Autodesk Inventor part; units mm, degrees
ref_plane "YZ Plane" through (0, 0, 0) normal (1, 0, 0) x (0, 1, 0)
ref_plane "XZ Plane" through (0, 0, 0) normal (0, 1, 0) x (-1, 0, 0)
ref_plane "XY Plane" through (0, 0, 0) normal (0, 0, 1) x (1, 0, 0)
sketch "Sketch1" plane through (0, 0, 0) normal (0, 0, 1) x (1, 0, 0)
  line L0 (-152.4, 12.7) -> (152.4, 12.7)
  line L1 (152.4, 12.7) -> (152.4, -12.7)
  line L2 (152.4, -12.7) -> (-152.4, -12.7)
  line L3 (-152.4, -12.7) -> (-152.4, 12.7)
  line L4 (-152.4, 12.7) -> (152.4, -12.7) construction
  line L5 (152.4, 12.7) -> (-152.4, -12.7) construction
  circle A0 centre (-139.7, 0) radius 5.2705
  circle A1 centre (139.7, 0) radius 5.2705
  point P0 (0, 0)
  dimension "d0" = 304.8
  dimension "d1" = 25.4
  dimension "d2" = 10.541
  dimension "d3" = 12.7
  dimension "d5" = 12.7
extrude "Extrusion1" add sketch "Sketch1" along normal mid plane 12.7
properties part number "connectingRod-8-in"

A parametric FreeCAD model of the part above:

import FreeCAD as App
import Part
import Sketcher

V = App.Vector
Q = App.Units.Quantity


def add_polygon(sketch, points):
    """Adds a closed chain of lines whose ends are joined by coincident constraints."""
    first, n = sketch.GeometryCount, len(points)
    for a, b in zip(points, points[1:] + points[:1]):
        sketch.addGeometry(Part.LineSegment(App.Vector(*a, 0), App.Vector(*b, 0)), False)
    for i in range(n):
        sketch.addConstraint(Sketcher.Constraint("Coincident", first + i, 2, first + (i + 1) % n, 1))

doc = App.newDocument("Part")
params = doc.addObject("Spreadsheet::Sheet", "Params")
for row, (alias, value) in enumerate([
    ("sketch1_width", "12 in"),
    ("sketch1_height", "1 in"),
    ("sketch1_diameter", "0.415 in"),
    ("pad1_length", "0.5 in"),
], start=1):
    params.set(f"A{row}", alias)
    params.set(f"B{row}", "=" + value)
    params.setAlias(f"B{row}", alias)

body = doc.addObject("PartDesign::Body", "Body")

sketch1 = body.newObject("Sketcher::SketchObject", "Sketch")
sketch1.AttachmentSupport = (doc.getObject("XY_Plane"), [""])
sketch1.MapMode = "FlatFace"
add_polygon(sketch1, [(152, 13), (-152, 13), (-152, -13), (152, -13)])
sketch1.addGeometry(Part.Circle(V(-140, 0, 0), V(0, 0, 1), 5), False)
sketch1.addGeometry(Part.Circle(V(140, 0, 0), V(0, 0, 1), 5), False)
sketch1.addConstraint([
    Sketcher.Constraint("Horizontal", 0),
    Sketcher.Constraint("Vertical", 1),
    Sketcher.Constraint("Horizontal", 2),
    Sketcher.Constraint("Vertical", 3),
    Sketcher.Constraint("Equal", 4, 5),
    Sketcher.Constraint("Symmetric", 4, 3, 5, 3, -1, 1),
    Sketcher.Constraint("Symmetric", 0, 2, 2, 2, -1, 1),
    Sketcher.Constraint("PointOnObject", 4, 3, -1),
    Sketcher.Constraint("DistanceX", 0, 2, 0, 1, Q("12 in")),
    Sketcher.Constraint("DistanceY", 1, 2, 1, 1, Q("1 in")),
    Sketcher.Constraint("Diameter", 4, Q("0.415 in")),
    Sketcher.Constraint("DistanceX", 0, 2, 4, 3, Q("0.5 in")),
])
sketch1.setExpression("Constraints[12]", "Params.sketch1_width")
sketch1.setExpression("Constraints[13]", "Params.sketch1_height")
sketch1.setExpression("Constraints[14]", "Params.sketch1_diameter")
pad1 = body.newObject("PartDesign::Pad", "Pad")
pad1.Profile = sketch1
pad1.setExpression("Length", "Params.pad1_length")
pad1.Midplane = True

doc.recompute()
